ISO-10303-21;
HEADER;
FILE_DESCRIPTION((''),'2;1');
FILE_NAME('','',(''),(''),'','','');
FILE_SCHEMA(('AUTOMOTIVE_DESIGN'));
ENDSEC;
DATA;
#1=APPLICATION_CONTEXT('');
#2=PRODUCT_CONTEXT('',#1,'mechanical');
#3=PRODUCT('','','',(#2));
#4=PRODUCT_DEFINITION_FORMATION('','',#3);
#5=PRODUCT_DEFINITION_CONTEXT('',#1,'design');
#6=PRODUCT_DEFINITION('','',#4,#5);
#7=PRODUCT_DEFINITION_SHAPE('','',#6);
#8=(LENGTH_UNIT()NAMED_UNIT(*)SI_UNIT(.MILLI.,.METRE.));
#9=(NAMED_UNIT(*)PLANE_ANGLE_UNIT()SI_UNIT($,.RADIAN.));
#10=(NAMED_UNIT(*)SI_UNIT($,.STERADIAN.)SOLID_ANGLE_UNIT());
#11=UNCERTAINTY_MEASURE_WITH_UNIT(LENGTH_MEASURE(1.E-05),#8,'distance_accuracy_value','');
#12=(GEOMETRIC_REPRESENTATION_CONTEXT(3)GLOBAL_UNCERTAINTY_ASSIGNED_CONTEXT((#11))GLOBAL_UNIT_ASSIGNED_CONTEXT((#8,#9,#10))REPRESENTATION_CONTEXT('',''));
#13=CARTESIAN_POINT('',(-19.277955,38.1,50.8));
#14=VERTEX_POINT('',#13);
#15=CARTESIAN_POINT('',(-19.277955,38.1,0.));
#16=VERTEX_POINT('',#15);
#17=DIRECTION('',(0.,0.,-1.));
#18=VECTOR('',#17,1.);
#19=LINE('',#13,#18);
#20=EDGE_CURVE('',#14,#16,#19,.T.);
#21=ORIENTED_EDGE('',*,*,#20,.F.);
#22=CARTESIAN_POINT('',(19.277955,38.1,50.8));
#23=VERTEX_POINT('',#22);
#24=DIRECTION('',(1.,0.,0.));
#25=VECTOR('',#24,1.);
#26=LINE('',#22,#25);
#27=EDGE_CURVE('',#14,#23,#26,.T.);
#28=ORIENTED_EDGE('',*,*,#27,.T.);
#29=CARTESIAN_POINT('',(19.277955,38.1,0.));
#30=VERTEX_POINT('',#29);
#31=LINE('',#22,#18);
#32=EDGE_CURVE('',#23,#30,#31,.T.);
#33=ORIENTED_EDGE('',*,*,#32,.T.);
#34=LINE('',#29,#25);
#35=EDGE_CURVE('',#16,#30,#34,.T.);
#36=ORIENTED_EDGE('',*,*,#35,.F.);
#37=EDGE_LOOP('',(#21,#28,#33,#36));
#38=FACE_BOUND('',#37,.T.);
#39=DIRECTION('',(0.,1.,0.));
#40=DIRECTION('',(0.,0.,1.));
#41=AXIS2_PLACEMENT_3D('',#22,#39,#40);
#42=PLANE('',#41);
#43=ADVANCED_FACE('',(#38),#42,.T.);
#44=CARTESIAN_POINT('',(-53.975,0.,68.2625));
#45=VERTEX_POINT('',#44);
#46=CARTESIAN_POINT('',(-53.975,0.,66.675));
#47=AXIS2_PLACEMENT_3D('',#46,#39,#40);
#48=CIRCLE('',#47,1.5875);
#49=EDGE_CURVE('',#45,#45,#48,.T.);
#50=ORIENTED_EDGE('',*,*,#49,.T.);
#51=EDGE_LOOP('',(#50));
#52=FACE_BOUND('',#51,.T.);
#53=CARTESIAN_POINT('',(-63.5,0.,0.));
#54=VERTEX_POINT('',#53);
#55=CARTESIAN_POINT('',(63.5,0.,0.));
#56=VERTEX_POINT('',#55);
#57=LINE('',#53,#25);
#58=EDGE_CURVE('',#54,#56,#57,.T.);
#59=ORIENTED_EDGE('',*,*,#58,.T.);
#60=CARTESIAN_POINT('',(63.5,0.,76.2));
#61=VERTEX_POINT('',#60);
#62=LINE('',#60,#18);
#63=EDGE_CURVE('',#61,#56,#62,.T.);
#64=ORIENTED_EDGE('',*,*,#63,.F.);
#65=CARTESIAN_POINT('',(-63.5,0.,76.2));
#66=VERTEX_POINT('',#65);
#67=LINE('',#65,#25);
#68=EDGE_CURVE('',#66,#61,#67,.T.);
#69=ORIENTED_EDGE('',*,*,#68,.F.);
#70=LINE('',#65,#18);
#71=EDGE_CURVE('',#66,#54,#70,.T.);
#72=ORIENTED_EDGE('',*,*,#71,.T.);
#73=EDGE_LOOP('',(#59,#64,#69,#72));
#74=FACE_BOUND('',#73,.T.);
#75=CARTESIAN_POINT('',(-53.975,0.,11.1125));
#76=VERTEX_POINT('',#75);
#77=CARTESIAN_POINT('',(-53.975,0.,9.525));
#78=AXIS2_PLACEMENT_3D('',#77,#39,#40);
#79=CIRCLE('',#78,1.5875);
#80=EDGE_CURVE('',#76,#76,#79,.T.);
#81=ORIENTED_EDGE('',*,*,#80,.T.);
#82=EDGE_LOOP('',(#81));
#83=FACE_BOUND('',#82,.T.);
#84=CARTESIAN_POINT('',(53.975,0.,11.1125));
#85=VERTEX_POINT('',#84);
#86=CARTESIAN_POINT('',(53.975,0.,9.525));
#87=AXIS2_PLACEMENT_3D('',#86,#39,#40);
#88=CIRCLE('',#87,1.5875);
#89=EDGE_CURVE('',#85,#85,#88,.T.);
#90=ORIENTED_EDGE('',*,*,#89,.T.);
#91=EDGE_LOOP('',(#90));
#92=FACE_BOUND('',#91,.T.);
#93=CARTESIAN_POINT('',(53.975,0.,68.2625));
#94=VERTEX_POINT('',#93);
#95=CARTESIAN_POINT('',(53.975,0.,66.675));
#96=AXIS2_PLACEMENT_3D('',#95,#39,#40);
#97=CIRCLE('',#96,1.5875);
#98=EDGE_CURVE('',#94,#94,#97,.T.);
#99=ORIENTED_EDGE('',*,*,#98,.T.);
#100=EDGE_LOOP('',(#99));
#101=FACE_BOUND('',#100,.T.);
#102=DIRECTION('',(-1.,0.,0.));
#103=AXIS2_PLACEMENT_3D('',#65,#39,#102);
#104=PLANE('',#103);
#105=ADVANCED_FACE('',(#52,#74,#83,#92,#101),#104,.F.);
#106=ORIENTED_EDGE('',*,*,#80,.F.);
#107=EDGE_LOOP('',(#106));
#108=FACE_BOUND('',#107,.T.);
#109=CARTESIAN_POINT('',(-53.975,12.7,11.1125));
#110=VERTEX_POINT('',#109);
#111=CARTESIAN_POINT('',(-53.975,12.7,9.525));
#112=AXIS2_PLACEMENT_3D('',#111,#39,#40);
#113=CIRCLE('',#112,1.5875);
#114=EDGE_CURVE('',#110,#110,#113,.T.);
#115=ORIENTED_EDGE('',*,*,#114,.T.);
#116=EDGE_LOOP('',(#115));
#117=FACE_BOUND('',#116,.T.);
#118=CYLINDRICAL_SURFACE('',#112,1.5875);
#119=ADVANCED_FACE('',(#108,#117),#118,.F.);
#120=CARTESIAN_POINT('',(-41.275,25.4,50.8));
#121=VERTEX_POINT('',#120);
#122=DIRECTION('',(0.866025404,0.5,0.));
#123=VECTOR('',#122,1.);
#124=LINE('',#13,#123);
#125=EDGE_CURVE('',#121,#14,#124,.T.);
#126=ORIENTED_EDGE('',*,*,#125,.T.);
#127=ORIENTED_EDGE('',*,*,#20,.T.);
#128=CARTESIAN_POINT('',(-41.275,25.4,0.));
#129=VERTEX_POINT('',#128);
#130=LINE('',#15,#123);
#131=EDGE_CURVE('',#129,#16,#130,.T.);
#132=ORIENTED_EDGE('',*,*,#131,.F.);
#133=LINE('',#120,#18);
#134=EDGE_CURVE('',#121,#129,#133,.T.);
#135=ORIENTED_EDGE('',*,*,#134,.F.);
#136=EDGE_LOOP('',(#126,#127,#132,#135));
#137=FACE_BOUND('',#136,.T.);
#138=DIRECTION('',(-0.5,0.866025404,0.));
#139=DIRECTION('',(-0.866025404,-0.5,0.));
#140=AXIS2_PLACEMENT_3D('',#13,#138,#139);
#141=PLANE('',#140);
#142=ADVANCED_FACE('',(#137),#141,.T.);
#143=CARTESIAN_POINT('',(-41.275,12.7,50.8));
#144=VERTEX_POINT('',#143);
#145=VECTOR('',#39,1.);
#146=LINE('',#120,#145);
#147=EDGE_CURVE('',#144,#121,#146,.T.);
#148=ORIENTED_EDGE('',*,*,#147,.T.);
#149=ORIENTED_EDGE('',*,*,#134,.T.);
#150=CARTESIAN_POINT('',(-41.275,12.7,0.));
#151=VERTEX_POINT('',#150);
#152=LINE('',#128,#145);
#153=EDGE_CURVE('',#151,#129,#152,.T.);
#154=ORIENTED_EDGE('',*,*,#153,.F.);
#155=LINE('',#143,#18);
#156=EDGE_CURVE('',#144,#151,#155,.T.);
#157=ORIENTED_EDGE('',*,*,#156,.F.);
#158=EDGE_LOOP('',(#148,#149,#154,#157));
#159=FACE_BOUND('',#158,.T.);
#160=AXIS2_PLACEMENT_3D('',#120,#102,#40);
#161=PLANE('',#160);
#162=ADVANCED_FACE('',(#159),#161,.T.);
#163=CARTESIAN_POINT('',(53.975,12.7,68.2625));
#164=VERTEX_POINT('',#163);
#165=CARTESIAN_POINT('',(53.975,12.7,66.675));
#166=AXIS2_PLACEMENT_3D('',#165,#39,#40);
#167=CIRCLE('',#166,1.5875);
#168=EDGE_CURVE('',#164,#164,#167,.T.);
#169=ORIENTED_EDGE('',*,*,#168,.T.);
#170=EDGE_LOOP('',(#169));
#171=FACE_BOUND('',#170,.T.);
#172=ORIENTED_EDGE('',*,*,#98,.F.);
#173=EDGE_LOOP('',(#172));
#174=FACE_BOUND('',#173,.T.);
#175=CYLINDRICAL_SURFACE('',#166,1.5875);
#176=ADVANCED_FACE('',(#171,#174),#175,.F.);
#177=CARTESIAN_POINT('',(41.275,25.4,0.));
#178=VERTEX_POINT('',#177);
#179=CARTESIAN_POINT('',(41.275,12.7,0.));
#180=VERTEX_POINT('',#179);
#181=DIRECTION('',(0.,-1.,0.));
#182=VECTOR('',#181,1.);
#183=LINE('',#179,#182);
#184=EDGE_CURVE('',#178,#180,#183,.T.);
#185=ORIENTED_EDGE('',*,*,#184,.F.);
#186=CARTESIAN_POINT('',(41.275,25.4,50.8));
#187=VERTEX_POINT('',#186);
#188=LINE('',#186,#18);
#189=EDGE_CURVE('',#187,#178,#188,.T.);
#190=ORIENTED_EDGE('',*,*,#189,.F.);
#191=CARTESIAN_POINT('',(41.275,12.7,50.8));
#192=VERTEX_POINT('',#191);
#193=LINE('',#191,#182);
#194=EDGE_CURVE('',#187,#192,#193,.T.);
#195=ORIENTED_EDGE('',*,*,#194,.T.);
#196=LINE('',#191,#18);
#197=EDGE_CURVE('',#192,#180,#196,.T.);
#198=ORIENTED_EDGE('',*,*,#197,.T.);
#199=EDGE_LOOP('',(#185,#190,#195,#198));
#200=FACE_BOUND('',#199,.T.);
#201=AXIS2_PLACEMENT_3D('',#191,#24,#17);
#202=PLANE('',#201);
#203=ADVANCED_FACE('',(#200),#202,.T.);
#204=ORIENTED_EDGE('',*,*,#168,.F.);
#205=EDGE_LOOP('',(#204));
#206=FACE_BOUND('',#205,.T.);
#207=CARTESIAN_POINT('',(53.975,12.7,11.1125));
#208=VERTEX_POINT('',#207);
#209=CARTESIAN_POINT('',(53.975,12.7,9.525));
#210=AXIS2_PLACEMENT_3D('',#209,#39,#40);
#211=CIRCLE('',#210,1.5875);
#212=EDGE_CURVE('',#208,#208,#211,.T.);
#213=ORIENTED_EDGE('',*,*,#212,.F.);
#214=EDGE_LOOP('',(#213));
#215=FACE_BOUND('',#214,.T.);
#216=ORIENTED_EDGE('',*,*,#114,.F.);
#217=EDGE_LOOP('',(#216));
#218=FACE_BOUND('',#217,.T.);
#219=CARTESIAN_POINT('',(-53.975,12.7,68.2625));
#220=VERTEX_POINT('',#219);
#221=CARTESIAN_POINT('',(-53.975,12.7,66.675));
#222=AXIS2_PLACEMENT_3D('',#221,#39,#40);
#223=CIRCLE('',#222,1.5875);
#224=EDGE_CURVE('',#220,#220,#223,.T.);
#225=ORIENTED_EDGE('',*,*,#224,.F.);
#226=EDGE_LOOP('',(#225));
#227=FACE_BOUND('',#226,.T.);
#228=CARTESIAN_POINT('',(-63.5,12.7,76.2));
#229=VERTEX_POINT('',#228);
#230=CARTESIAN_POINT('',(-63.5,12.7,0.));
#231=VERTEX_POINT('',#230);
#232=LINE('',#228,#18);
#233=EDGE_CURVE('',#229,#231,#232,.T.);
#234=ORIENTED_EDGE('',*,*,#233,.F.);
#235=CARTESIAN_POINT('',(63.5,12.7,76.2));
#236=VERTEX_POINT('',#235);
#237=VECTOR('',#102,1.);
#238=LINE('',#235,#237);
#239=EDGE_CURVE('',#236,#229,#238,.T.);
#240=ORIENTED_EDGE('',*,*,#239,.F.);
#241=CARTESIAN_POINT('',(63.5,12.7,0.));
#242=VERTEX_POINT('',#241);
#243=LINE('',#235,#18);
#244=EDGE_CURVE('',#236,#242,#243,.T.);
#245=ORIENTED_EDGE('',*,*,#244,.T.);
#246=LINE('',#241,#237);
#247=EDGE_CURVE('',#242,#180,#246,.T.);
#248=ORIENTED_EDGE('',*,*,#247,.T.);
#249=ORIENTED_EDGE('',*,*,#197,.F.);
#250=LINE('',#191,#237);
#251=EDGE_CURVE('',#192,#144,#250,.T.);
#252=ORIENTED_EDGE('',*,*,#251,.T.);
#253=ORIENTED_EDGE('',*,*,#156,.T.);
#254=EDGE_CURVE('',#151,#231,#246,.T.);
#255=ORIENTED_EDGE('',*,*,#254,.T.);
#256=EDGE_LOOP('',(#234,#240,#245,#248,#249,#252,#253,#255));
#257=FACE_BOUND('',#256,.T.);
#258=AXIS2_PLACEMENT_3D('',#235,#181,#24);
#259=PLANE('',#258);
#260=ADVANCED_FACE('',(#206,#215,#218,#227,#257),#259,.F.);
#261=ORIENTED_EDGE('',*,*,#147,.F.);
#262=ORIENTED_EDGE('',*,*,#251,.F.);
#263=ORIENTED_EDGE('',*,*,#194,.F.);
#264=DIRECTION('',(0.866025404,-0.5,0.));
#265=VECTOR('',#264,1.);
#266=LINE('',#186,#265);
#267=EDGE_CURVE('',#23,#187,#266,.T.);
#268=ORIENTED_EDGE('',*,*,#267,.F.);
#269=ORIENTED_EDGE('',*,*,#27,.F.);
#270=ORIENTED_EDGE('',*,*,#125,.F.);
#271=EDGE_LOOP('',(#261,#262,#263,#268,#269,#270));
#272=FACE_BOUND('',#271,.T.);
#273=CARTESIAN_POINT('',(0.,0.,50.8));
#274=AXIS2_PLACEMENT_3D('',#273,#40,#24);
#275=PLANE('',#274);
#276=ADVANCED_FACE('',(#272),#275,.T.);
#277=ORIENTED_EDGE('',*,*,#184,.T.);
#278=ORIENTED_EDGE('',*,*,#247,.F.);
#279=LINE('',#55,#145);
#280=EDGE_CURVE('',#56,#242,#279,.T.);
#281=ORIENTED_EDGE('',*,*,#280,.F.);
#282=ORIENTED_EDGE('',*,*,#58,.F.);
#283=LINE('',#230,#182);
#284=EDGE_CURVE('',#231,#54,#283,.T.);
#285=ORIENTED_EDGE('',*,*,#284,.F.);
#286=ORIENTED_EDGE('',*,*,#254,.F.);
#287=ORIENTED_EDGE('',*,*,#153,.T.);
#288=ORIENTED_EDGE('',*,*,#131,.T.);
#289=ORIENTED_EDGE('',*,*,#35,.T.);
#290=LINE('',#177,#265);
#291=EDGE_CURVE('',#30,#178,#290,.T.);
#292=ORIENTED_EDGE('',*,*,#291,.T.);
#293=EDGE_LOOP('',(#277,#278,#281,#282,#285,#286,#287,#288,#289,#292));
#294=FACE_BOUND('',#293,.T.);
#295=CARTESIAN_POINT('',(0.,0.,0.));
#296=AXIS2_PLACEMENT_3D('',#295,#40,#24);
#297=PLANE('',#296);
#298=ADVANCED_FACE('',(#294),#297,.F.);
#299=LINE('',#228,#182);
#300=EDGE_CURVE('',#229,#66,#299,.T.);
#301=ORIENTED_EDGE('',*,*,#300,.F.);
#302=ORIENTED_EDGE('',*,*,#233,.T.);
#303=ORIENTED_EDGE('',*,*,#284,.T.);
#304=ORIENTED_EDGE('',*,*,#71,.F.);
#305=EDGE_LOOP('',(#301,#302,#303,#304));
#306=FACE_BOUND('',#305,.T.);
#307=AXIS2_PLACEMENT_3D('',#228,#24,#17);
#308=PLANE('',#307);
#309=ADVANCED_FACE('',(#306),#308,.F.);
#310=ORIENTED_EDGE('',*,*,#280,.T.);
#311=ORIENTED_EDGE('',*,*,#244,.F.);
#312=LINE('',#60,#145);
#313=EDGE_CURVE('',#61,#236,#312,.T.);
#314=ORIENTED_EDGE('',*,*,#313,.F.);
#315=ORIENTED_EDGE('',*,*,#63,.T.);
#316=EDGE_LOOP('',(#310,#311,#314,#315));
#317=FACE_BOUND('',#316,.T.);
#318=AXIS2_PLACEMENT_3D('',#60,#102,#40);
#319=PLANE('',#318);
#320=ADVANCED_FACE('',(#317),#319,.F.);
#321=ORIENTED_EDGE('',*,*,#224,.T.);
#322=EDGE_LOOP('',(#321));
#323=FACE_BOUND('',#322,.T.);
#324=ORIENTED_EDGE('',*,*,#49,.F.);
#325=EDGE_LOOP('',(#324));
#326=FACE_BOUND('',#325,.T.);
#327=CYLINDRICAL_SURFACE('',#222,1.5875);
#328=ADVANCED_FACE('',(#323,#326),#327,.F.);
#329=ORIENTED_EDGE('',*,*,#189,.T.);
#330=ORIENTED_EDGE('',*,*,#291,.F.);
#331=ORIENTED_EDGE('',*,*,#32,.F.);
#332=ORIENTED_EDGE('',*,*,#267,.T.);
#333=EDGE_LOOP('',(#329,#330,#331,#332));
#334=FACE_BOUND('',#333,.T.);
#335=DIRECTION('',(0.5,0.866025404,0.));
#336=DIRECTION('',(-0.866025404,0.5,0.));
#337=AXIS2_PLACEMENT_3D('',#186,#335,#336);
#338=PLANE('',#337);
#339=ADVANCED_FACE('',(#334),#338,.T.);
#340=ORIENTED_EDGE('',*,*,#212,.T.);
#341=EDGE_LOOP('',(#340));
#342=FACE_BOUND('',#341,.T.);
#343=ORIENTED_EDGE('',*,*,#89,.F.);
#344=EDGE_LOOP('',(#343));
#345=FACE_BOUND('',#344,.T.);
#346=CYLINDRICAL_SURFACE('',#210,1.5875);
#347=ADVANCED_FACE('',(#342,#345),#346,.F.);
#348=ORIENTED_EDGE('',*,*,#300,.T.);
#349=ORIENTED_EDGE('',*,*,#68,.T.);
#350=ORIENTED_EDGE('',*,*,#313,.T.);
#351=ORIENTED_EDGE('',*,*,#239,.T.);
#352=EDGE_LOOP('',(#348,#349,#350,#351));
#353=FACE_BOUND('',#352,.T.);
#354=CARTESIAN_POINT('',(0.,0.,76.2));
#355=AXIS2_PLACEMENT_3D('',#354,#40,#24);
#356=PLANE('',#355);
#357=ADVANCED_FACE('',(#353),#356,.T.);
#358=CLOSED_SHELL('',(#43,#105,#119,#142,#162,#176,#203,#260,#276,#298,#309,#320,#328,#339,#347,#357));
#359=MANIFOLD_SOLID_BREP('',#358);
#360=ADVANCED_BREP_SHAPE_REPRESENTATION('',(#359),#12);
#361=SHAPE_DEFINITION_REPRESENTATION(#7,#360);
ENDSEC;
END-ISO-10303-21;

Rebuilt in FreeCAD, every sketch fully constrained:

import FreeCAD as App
import Part
import Sketcher
from FreeCAD import Vector
Q = App.Units.Quantity


def add_polygon(sketch, points):
    """Adds a closed chain of lines whose ends are joined by coincident constraints."""
    first, n = sketch.GeometryCount, len(points)
    for a, b in zip(points, points[1:] + points[:1]):
        sketch.addGeometry(Part.LineSegment(App.Vector(*a, 0), App.Vector(*b, 0)), False)
    for i in range(n):
        sketch.addConstraint(Sketcher.Constraint("Coincident", first + i, 2, first + (i + 1) % n, 1))

doc = App.newDocument("Part")
params = doc.addObject("Spreadsheet::Sheet", "Params")
for row, (alias, value) in enumerate([
    ("sketch1_width", "5 in"),
    ("sketch1_height", "0.5 in"),
    ("pad1_length", "3 in"),
    ("sketch2_length", "1 in"),
    ("sketch2_height", "0.5 in"),
    ("sketch2_width", "3.25 in"),
    ("pad2_length", "2 in"),
    ("sketch3_diameter", "0.125 in"),
    ("hole_diameter", "0.125 in"),
], start=1):
    params.set(f"A{row}", alias)
    params.set(f"B{row}", "=" + value)
    params.setAlias(f"B{row}", alias)

body = doc.addObject("PartDesign::Body", "Body")

# Sketch on XY plane
sketch1 = body.newObject("Sketcher::SketchObject", "Sketch")
sketch1.AttachmentSupport = (doc.getObject("XY_Plane"), [""])
sketch1.MapMode = "FlatFace"
add_polygon(sketch1, [(-64, 13), (-64, 0), (64, 0), (64, 13)])  # lines 0-3
sketch1.addConstraint([
    Sketcher.Constraint("Vertical", 0),
    Sketcher.Constraint("Horizontal", 1),
    Sketcher.Constraint("Vertical", 2),
    Sketcher.Constraint("Horizontal", 3),
    Sketcher.Constraint("Symmetric", 0, 2, 1, 2, -1, 1),
    Sketcher.Constraint("DistanceX", 1, 1, 1, 2, Q("5 in")),
    Sketcher.Constraint("DistanceY", 0, 2, 0, 1, Q("0.5 in")),
])
sketch1.setExpression("Constraints[9]", "Params.sketch1_width")
sketch1.setExpression("Constraints[10]", "Params.sketch1_height")
pad1 = body.newObject("PartDesign::Pad", "Pad")
pad1.Profile = sketch1
pad1.setExpression("Length", "Params.pad1_length")

# Sketch on XY plane
sketch2 = body.newObject("Sketcher::SketchObject", "Sketch001")
sketch2.AttachmentSupport = (doc.getObject("XY_Plane"), [""])
sketch2.MapMode = "FlatFace"
add_polygon(sketch2, [(41, 13), (-41, 13), (-41, 25), (-19, 38), (19, 38), (41, 25)])  # lines 0-5
sketch2.addConstraint([
    Sketcher.Constraint("Horizontal", 0),
    Sketcher.Constraint("Vertical", 1),
    Sketcher.Constraint("Horizontal", 3),
    Sketcher.Constraint("Vertical", 5),
    Sketcher.Constraint("Symmetric", 1, 2, 4, 2, -2),
    Sketcher.Constraint("Equal", 2, 4),
    Sketcher.Constraint("Distance", 2, Q("1 in")),
    Sketcher.Constraint("DistanceY", 1, 1, 1, 2, Q("0.5 in")),
    Sketcher.Constraint("DistanceY", -1, 1, 1, 2, Q("1 in")),
    Sketcher.Constraint("Angle", 2, Q("30 deg")),
    Sketcher.Constraint("DistanceX", 0, 2, 0, 1, Q("3.25 in")),
])
sketch2.setExpression("Constraints[12]", "Params.sketch2_length")
sketch2.setExpression("Constraints[13]", "Params.sketch2_height")
sketch2.setExpression("Constraints[16]", "Params.sketch2_width")
pad2 = body.newObject("PartDesign::Pad", "Pad001")
pad2.Profile = sketch2
pad2.setExpression("Length", "Params.pad2_length")

# Sketch on XZ plane
sketch3 = body.newObject("Sketcher::SketchObject", "Sketch002")
sketch3.AttachmentSupport = (doc.getObject("XZ_Plane"), [""])
sketch3.MapMode = "FlatFace"
sketch3.AttachmentOffset = App.Placement(Vector(0, 0, -0.5 * 25.4), App.Rotation())
sketch3.addGeometry([
    Part.Circle(Vector(54, 9.5, 0), Vector(0, 0, 1), 1.6),
    Part.Circle(Vector(-54, 9.5, 0), Vector(0, 0, 1), 1.6),
    Part.Circle(Vector(-54, 66.7, 0), Vector(0, 0, 1), 1.6),
    Part.Circle(Vector(54, 66.7, 0), Vector(0, 0, 1), 1.6),
], False)
sketch3.addConstraint([
    Sketcher.Constraint("Equal", 0, 1),
    Sketcher.Constraint("Equal", 1, 2),
    Sketcher.Constraint("Equal", 2, 3),
    Sketcher.Constraint("Symmetric", 0, 3, 1, 3, -2),
    Sketcher.Constraint("Symmetric", 2, 3, 3, 3, -2),
    Sketcher.Constraint("Vertical", 1, 3, 2, 3),
    Sketcher.Constraint("Diameter", 0, Q("0.125 in")),
    Sketcher.Constraint("DistanceX", 1, 3, 0, 3, Q("4.25 in")),
    Sketcher.Constraint("DistanceY", 1, 3, 2, 3, Q("2.25 in")),
    Sketcher.Constraint("DistanceY", -1, 1, 0, 3, Q("0.375 in")),
])
sketch3.setExpression("Constraints[6]", "Params.sketch3_diameter")
doc.recompute()
hole = body.newObject("PartDesign::Hole", "Hole")
hole.Profile = sketch3
hole.ThreadType = "None"
hole.setExpression("Diameter", "Params.hole_diameter")
hole.DepthType = "ThroughAll"
hole.Reversed = True

doc.recompute()
